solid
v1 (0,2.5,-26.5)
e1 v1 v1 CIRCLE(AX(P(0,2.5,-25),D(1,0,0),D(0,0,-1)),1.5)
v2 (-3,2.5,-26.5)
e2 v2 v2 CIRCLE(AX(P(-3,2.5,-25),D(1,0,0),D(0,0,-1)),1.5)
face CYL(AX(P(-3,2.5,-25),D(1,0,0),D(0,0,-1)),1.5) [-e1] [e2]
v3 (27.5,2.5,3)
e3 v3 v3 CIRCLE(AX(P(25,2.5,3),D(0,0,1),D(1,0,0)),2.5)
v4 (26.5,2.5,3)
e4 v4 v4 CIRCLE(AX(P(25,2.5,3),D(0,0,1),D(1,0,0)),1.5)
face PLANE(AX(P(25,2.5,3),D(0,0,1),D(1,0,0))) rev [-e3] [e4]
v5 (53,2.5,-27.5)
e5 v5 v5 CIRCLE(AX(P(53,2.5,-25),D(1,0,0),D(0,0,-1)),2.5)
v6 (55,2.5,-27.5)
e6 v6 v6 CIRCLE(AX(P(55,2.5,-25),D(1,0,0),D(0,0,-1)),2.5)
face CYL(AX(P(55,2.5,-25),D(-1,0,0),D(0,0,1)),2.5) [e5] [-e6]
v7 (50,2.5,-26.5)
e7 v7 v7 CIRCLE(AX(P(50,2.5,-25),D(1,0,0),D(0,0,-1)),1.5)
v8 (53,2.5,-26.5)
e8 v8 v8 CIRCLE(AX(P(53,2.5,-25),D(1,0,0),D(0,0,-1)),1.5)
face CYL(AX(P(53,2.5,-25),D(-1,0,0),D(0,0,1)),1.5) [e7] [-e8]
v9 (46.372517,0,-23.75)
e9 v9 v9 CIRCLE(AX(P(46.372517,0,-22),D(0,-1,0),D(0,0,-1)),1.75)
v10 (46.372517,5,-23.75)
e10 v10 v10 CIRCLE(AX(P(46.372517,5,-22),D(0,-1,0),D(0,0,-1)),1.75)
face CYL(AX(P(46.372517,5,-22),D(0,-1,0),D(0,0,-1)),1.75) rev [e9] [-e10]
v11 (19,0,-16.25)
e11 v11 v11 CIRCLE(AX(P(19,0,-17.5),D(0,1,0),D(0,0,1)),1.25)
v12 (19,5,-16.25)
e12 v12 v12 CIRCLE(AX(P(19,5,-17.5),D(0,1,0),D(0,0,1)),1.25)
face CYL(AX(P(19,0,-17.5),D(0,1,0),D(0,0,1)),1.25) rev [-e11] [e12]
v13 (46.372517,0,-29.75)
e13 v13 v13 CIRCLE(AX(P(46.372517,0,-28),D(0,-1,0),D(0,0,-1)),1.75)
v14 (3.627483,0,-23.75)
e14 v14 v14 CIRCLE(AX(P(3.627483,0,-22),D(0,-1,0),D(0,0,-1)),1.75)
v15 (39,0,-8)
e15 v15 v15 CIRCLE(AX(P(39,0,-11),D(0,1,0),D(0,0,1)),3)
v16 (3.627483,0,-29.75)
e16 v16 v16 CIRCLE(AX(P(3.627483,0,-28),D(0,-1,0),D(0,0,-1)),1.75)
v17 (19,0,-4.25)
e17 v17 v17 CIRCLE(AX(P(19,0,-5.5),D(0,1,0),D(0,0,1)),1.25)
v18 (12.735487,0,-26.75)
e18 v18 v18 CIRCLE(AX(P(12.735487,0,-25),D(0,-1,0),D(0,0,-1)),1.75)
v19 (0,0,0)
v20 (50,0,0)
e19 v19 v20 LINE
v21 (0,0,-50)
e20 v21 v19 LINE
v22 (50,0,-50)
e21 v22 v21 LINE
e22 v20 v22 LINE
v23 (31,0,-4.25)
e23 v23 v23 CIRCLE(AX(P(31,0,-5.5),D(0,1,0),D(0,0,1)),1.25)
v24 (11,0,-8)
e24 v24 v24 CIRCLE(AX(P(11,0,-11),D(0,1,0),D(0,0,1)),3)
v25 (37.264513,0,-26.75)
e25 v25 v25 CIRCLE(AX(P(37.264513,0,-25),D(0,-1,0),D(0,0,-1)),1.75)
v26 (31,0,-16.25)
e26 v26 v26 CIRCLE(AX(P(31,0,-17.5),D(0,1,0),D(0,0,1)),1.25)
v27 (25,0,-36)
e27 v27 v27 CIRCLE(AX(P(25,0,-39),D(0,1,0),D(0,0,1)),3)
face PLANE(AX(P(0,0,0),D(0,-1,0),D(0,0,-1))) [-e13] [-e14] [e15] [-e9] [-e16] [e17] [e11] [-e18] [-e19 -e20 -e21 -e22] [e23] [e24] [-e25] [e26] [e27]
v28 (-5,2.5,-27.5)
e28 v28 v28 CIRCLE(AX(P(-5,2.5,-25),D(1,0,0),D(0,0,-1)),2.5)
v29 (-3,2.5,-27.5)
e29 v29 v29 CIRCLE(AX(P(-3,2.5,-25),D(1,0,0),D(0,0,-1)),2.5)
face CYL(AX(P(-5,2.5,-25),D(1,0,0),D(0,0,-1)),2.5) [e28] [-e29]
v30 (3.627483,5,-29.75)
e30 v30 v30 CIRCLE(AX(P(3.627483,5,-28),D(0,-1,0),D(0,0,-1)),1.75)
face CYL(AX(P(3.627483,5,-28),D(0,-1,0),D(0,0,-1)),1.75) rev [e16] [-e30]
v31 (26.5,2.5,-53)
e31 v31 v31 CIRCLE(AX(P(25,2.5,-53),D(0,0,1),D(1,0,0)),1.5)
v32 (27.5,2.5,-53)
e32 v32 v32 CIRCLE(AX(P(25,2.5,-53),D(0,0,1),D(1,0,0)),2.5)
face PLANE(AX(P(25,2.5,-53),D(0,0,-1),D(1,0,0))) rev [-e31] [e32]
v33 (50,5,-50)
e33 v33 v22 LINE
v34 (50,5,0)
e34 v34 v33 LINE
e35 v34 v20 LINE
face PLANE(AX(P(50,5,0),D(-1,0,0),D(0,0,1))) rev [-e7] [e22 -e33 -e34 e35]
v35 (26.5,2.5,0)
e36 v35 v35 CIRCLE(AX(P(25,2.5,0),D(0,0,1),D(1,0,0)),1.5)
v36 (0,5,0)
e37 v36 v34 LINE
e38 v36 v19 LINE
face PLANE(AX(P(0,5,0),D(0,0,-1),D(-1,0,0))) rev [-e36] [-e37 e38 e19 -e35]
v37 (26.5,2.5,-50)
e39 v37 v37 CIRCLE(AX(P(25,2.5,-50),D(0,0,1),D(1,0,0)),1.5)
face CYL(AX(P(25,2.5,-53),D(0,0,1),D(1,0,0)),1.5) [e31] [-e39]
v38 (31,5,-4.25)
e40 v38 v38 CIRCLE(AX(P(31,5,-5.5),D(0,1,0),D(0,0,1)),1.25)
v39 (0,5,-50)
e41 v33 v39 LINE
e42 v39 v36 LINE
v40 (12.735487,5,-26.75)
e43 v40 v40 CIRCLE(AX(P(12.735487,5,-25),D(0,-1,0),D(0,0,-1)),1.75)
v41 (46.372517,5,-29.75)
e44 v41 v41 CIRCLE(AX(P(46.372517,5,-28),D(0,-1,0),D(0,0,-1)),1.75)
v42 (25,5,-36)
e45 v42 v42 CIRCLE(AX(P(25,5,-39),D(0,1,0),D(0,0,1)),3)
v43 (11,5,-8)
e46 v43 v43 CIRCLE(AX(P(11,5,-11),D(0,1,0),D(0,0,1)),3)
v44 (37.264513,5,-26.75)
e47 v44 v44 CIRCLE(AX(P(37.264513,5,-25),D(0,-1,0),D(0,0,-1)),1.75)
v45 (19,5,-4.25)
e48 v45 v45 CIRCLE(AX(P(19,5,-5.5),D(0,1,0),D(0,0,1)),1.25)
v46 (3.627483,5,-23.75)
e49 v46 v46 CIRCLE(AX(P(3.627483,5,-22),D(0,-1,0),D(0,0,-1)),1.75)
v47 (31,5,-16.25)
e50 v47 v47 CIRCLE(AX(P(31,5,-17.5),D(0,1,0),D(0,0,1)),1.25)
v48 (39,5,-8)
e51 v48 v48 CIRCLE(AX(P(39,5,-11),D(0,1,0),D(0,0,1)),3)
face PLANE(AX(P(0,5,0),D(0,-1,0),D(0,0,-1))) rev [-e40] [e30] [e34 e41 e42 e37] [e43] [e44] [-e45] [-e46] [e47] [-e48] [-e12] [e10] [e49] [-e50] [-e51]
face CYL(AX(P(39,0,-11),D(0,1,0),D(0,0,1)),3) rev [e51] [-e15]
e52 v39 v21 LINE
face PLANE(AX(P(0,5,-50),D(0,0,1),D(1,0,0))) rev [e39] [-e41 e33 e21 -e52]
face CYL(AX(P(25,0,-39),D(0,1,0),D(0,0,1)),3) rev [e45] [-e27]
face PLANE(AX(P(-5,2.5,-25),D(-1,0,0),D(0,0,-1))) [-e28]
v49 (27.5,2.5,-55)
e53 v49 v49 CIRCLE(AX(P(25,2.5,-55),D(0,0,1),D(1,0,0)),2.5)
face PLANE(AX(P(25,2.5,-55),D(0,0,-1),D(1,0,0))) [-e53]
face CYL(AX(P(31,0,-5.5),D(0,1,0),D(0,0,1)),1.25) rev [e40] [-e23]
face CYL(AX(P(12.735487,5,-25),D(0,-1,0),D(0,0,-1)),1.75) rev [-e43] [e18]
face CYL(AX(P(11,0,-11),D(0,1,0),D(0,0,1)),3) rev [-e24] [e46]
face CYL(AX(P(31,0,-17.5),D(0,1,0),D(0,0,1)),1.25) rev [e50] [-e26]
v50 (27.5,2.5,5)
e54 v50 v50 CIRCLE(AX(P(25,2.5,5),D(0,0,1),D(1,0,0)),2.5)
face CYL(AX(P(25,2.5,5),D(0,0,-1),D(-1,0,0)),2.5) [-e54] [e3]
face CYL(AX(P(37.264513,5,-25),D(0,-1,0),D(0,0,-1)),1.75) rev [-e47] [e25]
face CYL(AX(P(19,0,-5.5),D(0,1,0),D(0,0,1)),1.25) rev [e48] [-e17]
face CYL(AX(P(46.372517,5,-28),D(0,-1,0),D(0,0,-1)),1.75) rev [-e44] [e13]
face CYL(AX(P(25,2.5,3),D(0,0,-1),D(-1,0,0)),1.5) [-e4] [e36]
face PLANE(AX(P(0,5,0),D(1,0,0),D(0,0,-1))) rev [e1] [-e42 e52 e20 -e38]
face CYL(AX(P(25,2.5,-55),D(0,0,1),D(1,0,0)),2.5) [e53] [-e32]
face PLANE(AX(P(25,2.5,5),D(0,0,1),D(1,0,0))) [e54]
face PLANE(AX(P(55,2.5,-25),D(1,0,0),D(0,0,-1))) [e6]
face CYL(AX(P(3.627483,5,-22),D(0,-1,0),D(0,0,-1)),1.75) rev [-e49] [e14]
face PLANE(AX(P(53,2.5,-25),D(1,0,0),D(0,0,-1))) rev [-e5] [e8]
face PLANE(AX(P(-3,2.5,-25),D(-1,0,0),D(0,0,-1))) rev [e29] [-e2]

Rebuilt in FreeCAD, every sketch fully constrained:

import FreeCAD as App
import Part
import Sketcher
from FreeCAD import Vector

doc = App.newDocument("Part")
body = doc.addObject("PartDesign::Body", "Body")

# Sketch on XZ plane
sketch1 = body.newObject("Sketcher::SketchObject", "Sketch")
sketch1.AttachmentSupport = (doc.getObject("XZ_Plane"), [""])
sketch1.MapMode = "FlatFace"
sketch1.addGeometry([
    Part.LineSegment(Vector(0, -50, 0), Vector(0, 0, 0)),
    Part.LineSegment(Vector(0, 0, 0), Vector(50, 0, 0)),
    Part.LineSegment(Vector(50, 0, 0), Vector(50, -50, 0)),
    Part.LineSegment(Vector(50, -50, 0), Vector(0, -50, 0)),
], False)
sketch1.addConstraint([
    Sketcher.Constraint("Coincident", 0, 2, 1, 1),
    Sketcher.Constraint("Coincident", 1, 2, 2, 1),
    Sketcher.Constraint("Coincident", 2, 2, 3, 1),
    Sketcher.Constraint("Coincident", 3, 2, 0, 1),
    Sketcher.Constraint("Vertical", 0),
    Sketcher.Constraint("Horizontal", 1),
    Sketcher.Constraint("Vertical", 2),
    Sketcher.Constraint("Horizontal", 3),
    Sketcher.Constraint("Coincident", 0, 2, -1, 1),
    Sketcher.Constraint("Equal", 3, 0),
    Sketcher.Constraint("DistanceX", 1, 1, 1, 2, 50.0),
])
pad1 = body.newObject("PartDesign::Pad", "Pad")
pad1.Profile = sketch1
pad1.Length = 5
pad1.Reversed = True

# Sketch on XZ plane
sketch2 = body.newObject("Sketcher::SketchObject", "Sketch001")
sketch2.AttachmentSupport = (doc.getObject("XZ_Plane"), [""])
sketch2.MapMode = "FlatFace"
sketch2.AttachmentOffset = App.Placement(Vector(0, 0, -5), App.Rotation())
sketch2.addGeometry([
    Part.Circle(Vector(25, -39, 0), Vector(0, 0, 1), 3),
    Part.Circle(Vector(11, -11, 0), Vector(0, 0, 1), 3),
    Part.Circle(Vector(39, -11, 0), Vector(0, 0, 1), 3),
], False)
sketch2.addConstraint([
    Sketcher.Constraint("Equal", 0, 1),
    Sketcher.Constraint("Equal", 1, 2),
    Sketcher.Constraint("Horizontal", 1, 3, 2, 3),
    Sketcher.Constraint("Diameter", 0, 6.0),
    Sketcher.Constraint("DistanceX", -1, 1, 0, 3, 25.0),
    Sketcher.Constraint("DistanceY", 0, 3, -1, 1, 39.0),
    Sketcher.Constraint("DistanceX", -1, 1, 1, 3, 11.0),
    Sketcher.Constraint("DistanceY", 1, 3, -1, 1, 11.0),
    Sketcher.Constraint("DistanceX", -1, 1, 2, 3, 39.0),
])
pocket1 = body.newObject("PartDesign::Pocket", "Pocket")
pocket1.Profile = sketch2
pocket1.Type = "ThroughAll"
pocket1.Reversed = True

# Sketch on XZ plane
sketch3 = body.newObject("Sketcher::SketchObject", "Sketch002")
sketch3.AttachmentSupport = (doc.getObject("XZ_Plane"), [""])
sketch3.MapMode = "FlatFace"
sketch3.AttachmentOffset = App.Placement(Vector(0, 0, -5), App.Rotation())
sketch3.addGeometry([
    Part.Circle(Vector(19, -17.5, 0), Vector(0, 0, 1), 1.2),
    Part.Circle(Vector(31, -17.5, 0), Vector(0, 0, 1), 1.2),
    Part.Circle(Vector(19, -5.5, 0), Vector(0, 0, 1), 1.2),
    Part.Circle(Vector(31, -5.5, 0), Vector(0, 0, 1), 1.2),
], False)
sketch3.addConstraint([
    Sketcher.Constraint("Equal", 0, 1),
    Sketcher.Constraint("Equal", 1, 2),
    Sketcher.Constraint("Equal", 2, 3),
    Sketcher.Constraint("Horizontal", 0, 3, 1, 3),
    Sketcher.Constraint("Horizontal", 2, 3, 3, 3),
    Sketcher.Constraint("Vertical", 0, 3, 2, 3),
    Sketcher.Constraint("Vertical", 1, 3, 3, 3),
    Sketcher.Constraint("Diameter", 0, 2.5),
    Sketcher.Constraint("DistanceX", -1, 1, 0, 3, 19.0),
    Sketcher.Constraint("DistanceX", -1, 1, 1, 3, 31.0),
    Sketcher.Constraint("DistanceY", 0, 3, 2, 3, 12.0),
    Sketcher.Constraint("DistanceY", 0, 3, -1, 1, 17.5),
])
pocket2 = body.newObject("PartDesign::Pocket", "Pocket001")
pocket2.Profile = sketch3
pocket2.Type = "ThroughAll"
pocket2.Reversed = True

# Sketch on XZ plane
sketch4 = body.newObject("Sketcher::SketchObject", "Sketch003")
sketch4.AttachmentSupport = (doc.getObject("XZ_Plane"), [""])
sketch4.MapMode = "FlatFace"
sketch4.addGeometry([
    Part.Circle(Vector(46.4, -22, 0), Vector(0, 0, 1), 1.8),  # 0
    Part.Circle(Vector(46.4, -28, 0), Vector(0, 0, 1), 1.8),  # 1
    Part.Circle(Vector(37.3, -25, 0), Vector(0, 0, 1), 1.8),  # 2
    Part.Circle(Vector(12.7, -25, 0), Vector(0, 0, 1), 1.8),  # 3
    Part.Circle(Vector(3.6, -28, 0), Vector(0, 0, 1), 1.8),  # 4
    Part.Circle(Vector(3.6, -22, 0), Vector(0, 0, 1), 1.8),  # 5
], False)
sketch4.addConstraint([
    Sketcher.Constraint("Equal", 0, 1),
    Sketcher.Constraint("Equal", 1, 2),
    Sketcher.Constraint("Equal", 2, 3),
    Sketcher.Constraint("Equal", 3, 4),
    Sketcher.Constraint("Equal", 4, 5),
    Sketcher.Constraint("Horizontal", 2, 3, 3, 3),
    Sketcher.Constraint("Horizontal", 1, 3, 4, 3),
    Sketcher.Constraint("Horizontal", 0, 3, 5, 3),
    Sketcher.Constraint("Vertical", 0, 3, 1, 3),
    Sketcher.Constraint("Vertical", 4, 3, 5, 3),
    Sketcher.Constraint("Diameter", 0, 3.5),
    Sketcher.Constraint("DistanceY", 0, 3, -1, 1, 22.0),
    Sketcher.Constraint("DistanceY", 1, 3, -1, 1, 28.0),
    Sketcher.Constraint("DistanceY", 2, 3, -1, 1, 25.0),
    Sketcher.Constraint("DistanceX", 3, 3, 0, 3, 33.63703),
    Sketcher.Constraint("DistanceX", 4, 3, 2, 3, 33.63703),
    Sketcher.Constraint("DistanceX", -1, 1, 0, 3, 46.372517),
    Sketcher.Constraint("DistanceX", -1, 1, 2, 3, 37.264513),
])
pocket3 = body.newObject("PartDesign::Pocket", "Pocket002")
pocket3.Profile = sketch4
pocket3.Type = "ThroughAll"

# Sketch on XY plane
sketch5 = body.newObject("Sketcher::SketchObject", "Sketch004")
sketch5.AttachmentSupport = (doc.getObject("XY_Plane"), [""])
sketch5.MapMode = "FlatFace"
sketch5.addGeometry(Part.Circle(Vector(25, 2.5, 0), Vector(0, 0, 1), 2.5), False)
sketch5.addConstraint([
    Sketcher.Constraint("Diameter", 0, 5.0),
    Sketcher.Constraint("DistanceX", -1, 1, 0, 3, 25.0),
    Sketcher.Constraint("DistanceY", -1, 1, 0, 3, 2.5),
])
pad2 = body.newObject("PartDesign::Pad", "Pad001")
pad2.Profile = sketch5
pad2.Length = 5

# Sketch on XY plane
sketch6 = body.newObject("Sketcher::SketchObject", "Sketch005")
sketch6.AttachmentSupport = (doc.getObject("XY_Plane"), [""])
sketch6.MapMode = "FlatFace"
sketch6.addGeometry([
    Part.Circle(Vector(25, 2.5, 0), Vector(0, 0, 1), 2.5),
    Part.Circle(Vector(25, 2.5, 0), Vector(0, 0, 1), 1.5),
], False)
sketch6.addConstraint([
    Sketcher.Constraint("Coincident", 1, 3, 0, 3),
    Sketcher.Constraint("Diameter", 0, 5.0),
    Sketcher.Constraint("Diameter", 1, 3.0),
    Sketcher.Constraint("DistanceX", -1, 1, 0, 3, 25.0),
    Sketcher.Constraint("DistanceY", -1, 1, 0, 3, 2.5),
])
pocket4 = body.newObject("PartDesign::Pocket", "Pocket003")
pocket4.Profile = sketch6
pocket4.Length = 3
pocket4.Reversed = True

# Sketch on YZ plane
sketch7 = body.newObject("Sketcher::SketchObject", "Sketch006")
sketch7.AttachmentSupport = (doc.getObject("YZ_Plane"), [""])
sketch7.MapMode = "FlatFace"
sketch7.AttachmentOffset = App.Placement(Vector(0, 0, 50), App.Rotation())
sketch7.addGeometry(Part.Circle(Vector(2.5, -25, 0), Vector(0, 0, 1), 2.5), False)
sketch7.addConstraint([
    Sketcher.Constraint("Diameter", 0, 5.0),
    Sketcher.Constraint("DistanceY", 0, 3, -1, 1, 25.0),
    Sketcher.Constraint("DistanceX", -1, 1, 0, 3, 2.5),
])
pad3 = body.newObject("PartDesign::Pad", "Pad002")
pad3.Profile = sketch7
pad3.Length = 5

# Sketch on YZ plane
sketch8 = body.newObject("Sketcher::SketchObject", "Sketch007")
sketch8.AttachmentSupport = (doc.getObject("YZ_Plane"), [""])
sketch8.MapMode = "FlatFace"
sketch8.AttachmentOffset = App.Placement(Vector(0, 0, 50), App.Rotation())
sketch8.addGeometry([
    Part.Circle(Vector(2.5, -25, 0), Vector(0, 0, 1), 2.5),
    Part.Circle(Vector(2.5, -25, 0), Vector(0, 0, 1), 1.5),
], False)
sketch8.addConstraint([
    Sketcher.Constraint("Coincident", 1, 3, 0, 3),
    Sketcher.Constraint("Diameter", 0, 5.0),
    Sketcher.Constraint("Diameter", 1, 3.0),
    Sketcher.Constraint("DistanceY", 0, 3, -1, 1, 25.0),
    Sketcher.Constraint("DistanceX", -1, 1, 0, 3, 2.5),
])
pocket5 = body.newObject("PartDesign::Pocket", "Pocket004")
pocket5.Profile = sketch8
pocket5.Length = 3
pocket5.Reversed = True
doc.recompute()

datumplane = body.newObject("PartDesign::Plane", "DatumPlane")
datumplane.AttachmentSupport = (doc.getObject("YZ_Plane"), [""])
datumplane.MapMode = "FlatFace"
datumplane.AttachmentOffset = App.Placement(Vector(0, 0, 25), App.Rotation())
mirrored = body.newObject("PartDesign::Mirrored", "Mirrored")
mirrored.Originals = [pad3, pocket5]
mirrored.MirrorPlane = (datumplane, [""])
body.Tip = mirrored
doc.recompute()

datumplane2 = body.newObject("PartDesign::Plane", "DatumPlane001")
datumplane2.AttachmentSupport = (doc.getObject("XY_Plane"), [""])
datumplane2.MapMode = "FlatFace"
datumplane2.AttachmentOffset = App.Placement(Vector(0, 0, -25), App.Rotation())
mirrored2 = body.newObject("PartDesign::Mirrored", "Mirrored001")
mirrored2.Originals = [pad2, pocket4]
mirrored2.MirrorPlane = (datumplane2, [""])
body.Tip = mirrored2

doc.recompute()
